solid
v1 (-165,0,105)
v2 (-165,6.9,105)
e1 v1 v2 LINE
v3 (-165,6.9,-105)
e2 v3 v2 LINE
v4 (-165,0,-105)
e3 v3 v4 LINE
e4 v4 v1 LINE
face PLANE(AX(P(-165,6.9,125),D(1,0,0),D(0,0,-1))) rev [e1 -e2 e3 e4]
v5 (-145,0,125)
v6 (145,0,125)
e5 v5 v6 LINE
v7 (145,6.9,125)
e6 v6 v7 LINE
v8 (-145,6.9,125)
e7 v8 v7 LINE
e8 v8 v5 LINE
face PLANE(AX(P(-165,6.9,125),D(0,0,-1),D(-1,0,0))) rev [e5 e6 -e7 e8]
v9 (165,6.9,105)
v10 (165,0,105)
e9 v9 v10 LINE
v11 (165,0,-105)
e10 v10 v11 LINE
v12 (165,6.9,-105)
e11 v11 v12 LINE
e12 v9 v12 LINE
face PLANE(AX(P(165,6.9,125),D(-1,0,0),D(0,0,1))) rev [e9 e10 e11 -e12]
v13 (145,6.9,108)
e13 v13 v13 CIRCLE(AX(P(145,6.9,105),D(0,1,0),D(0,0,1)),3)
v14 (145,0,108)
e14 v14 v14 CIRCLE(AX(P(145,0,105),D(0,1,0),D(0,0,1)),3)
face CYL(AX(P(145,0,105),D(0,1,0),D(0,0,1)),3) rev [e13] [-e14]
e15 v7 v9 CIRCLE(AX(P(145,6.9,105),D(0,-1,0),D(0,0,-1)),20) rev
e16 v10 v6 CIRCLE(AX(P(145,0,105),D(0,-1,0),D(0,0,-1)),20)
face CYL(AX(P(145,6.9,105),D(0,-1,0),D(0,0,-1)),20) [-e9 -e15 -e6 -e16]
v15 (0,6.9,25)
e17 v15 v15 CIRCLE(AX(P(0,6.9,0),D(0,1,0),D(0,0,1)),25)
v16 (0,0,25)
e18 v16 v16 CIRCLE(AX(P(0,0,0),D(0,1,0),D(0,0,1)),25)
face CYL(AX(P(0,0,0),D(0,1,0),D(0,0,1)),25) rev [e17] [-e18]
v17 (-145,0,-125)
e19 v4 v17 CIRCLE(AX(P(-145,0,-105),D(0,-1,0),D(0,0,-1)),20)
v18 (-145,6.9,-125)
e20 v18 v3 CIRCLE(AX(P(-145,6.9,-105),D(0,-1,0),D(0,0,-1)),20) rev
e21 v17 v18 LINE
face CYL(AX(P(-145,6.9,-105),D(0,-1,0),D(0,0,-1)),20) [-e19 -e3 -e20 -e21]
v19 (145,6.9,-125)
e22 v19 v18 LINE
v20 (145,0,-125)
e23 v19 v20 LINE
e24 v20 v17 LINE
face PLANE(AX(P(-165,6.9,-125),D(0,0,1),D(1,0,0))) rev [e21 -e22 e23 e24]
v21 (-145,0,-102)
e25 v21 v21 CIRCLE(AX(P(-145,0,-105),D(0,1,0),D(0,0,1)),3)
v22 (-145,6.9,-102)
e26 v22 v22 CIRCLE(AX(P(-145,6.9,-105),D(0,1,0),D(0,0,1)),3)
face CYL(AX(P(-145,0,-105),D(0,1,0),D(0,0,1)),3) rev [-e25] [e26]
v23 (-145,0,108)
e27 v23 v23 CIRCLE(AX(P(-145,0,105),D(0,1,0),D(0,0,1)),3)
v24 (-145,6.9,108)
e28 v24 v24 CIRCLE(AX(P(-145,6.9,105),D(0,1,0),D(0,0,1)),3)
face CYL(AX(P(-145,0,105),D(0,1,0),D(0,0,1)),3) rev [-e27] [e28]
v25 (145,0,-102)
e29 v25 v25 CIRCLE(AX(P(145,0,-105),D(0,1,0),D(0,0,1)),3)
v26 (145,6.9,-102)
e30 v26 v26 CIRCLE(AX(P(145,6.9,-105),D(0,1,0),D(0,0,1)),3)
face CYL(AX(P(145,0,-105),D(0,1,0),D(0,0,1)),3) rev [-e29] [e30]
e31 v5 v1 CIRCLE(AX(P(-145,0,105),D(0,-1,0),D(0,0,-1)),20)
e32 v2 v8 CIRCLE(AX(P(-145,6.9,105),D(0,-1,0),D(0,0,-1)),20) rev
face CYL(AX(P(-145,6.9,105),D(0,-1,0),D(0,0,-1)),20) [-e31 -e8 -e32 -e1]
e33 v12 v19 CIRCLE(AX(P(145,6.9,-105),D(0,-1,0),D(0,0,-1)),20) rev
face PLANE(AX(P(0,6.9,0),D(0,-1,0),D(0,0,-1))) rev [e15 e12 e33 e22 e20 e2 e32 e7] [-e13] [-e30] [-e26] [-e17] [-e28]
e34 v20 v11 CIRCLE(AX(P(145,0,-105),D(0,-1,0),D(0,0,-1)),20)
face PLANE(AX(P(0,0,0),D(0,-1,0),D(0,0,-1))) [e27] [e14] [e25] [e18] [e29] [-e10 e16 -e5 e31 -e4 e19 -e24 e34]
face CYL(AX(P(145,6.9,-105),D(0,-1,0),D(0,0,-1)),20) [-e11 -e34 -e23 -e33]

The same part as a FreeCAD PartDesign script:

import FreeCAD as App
import Part
import Sketcher

V = App.Vector
Q = App.Units.Quantity


def edges_at(feature, points):
    """Names of the edges that pass closest to the given points."""
    edges = feature.Shape.Edges
    near = lambda p: min(range(len(edges)), key=lambda i: edges[i].distToShape(Part.Vertex(*p))[0])
    return sorted({f"Edge{near(p) + 1}" for p in points})


def add_polygon(sketch, points):
    """Adds a closed chain of lines whose ends are joined by coincident constraints."""
    first, n = sketch.GeometryCount, len(points)
    for a, b in zip(points, points[1:] + points[:1]):
        sketch.addGeometry(Part.LineSegment(App.Vector(*a, 0), App.Vector(*b, 0)), False)
    for i in range(n):
        sketch.addConstraint(Sketcher.Constraint("Coincident", first + i, 2, first + (i + 1) % n, 1))

doc = App.newDocument("Part")
body = doc.addObject("PartDesign::Body", "Body")

# Sketch on XZ plane
sketch1 = body.newObject("Sketcher::SketchObject", "Sketch")
sketch1.AttachmentSupport = (doc.getObject("XZ_Plane"), [""])
sketch1.MapMode = "FlatFace"
add_polygon(sketch1, [(-165, -125), (-165, 125), (165, 125), (165, -125)])  # lines 0-3
sketch1.addConstraint(Sketcher.Constraint("Vertical", 0))
sketch1.addConstraint(Sketcher.Constraint("Horizontal", 1))
sketch1.addConstraint(Sketcher.Constraint("Vertical", 2))
sketch1.addConstraint(Sketcher.Constraint("Horizontal", 3))
sketch1.addConstraint(Sketcher.Constraint("Symmetric", 0, 2, 2, 2, -1, 1))
sketch1.addConstraint(Sketcher.Constraint("DistanceX", 1, 1, 1, 2, Q("330 mm")))
sketch1.addConstraint(Sketcher.Constraint("DistanceY", 0, 1, 0, 2, Q("250 mm")))
pad1 = body.newObject("PartDesign::Pad", "Pad")
pad1.Profile = sketch1
pad1.Length = 6.9
pad1.Reversed = True

# Sketch on XZ plane
sketch2 = body.newObject("Sketcher::SketchObject", "Sketch001")
sketch2.AttachmentSupport = (doc.getObject("XZ_Plane"), [""])
sketch2.MapMode = "FlatFace"
sketch2.AttachmentOffset = App.Placement(V(0, 0, -6.9), App.Rotation())
sketch2.addGeometry(Part.Circle(V(-145, -105, 0), V(0, 0, 1), 3), False)
sketch2.addGeometry(Part.Circle(V(145, -105, 0), V(0, 0, 1), 3), False)
sketch2.addGeometry(Part.Circle(V(145, 105, 0), V(0, 0, 1), 3), False)
sketch2.addGeometry(Part.Circle(V(-145, 105, 0), V(0, 0, 1), 3), False)
sketch2.addConstraint(Sketcher.Constraint("Equal", 0, 1))
sketch2.addConstraint(Sketcher.Constraint("Equal", 1, 2))
sketch2.addConstraint(Sketcher.Constraint("Equal", 2, 3))
sketch2.addConstraint(Sketcher.Constraint("Symmetric", 0, 3, 2, 3, -1, 1))
sketch2.addConstraint(Sketcher.Constraint("Symmetric", 1, 3, 3, 3, -1, 1))
sketch2.addConstraint(Sketcher.Constraint("Symmetric", 0, 3, 1, 3, -2))
sketch2.addConstraint(Sketcher.Constraint("Diameter", 0, Q("6 mm")))
sketch2.addConstraint(Sketcher.Constraint("DistanceX", 0, 3, -1, 1, Q("145 mm")))
sketch2.addConstraint(Sketcher.Constraint("DistanceY", 0, 3, -1, 1, Q("105 mm")))
pocket1 = body.newObject("PartDesign::Pocket", "Pocket")
pocket1.Profile = sketch2
pocket1.Type = "ThroughAll"
pocket1.Reversed = True

# Sketch on XZ plane
sketch3 = body.newObject("Sketcher::SketchObject", "Sketch002")
sketch3.AttachmentSupport = (doc.getObject("XZ_Plane"), [""])
sketch3.MapMode = "FlatFace"
sketch3.AttachmentOffset = App.Placement(V(0, 0, -6.9), App.Rotation())
sketch3.addGeometry(Part.Circle(V(0, 0, 0), V(0, 0, 1), 25), False)
sketch3.addConstraint(Sketcher.Constraint("Coincident", 0, 3, -1, 1))
sketch3.addConstraint(Sketcher.Constraint("Diameter", 0, Q("50 mm")))
pocket2 = body.newObject("PartDesign::Pocket", "Pocket001")
pocket2.Profile = sketch3
pocket2.Type = "ThroughAll"
pocket2.Reversed = True
doc.recompute()

fillet = body.newObject("PartDesign::Fillet", "Fillet")
fillet.Base = (pocket2, edges_at(pocket2, [
    (-165, 3.45, -125),
    (165, 3.45, -125),
    (165, 3.45, 125),
    (-165, 3.45, 125),
]))
fillet.Radius = 20

doc.recompute()
